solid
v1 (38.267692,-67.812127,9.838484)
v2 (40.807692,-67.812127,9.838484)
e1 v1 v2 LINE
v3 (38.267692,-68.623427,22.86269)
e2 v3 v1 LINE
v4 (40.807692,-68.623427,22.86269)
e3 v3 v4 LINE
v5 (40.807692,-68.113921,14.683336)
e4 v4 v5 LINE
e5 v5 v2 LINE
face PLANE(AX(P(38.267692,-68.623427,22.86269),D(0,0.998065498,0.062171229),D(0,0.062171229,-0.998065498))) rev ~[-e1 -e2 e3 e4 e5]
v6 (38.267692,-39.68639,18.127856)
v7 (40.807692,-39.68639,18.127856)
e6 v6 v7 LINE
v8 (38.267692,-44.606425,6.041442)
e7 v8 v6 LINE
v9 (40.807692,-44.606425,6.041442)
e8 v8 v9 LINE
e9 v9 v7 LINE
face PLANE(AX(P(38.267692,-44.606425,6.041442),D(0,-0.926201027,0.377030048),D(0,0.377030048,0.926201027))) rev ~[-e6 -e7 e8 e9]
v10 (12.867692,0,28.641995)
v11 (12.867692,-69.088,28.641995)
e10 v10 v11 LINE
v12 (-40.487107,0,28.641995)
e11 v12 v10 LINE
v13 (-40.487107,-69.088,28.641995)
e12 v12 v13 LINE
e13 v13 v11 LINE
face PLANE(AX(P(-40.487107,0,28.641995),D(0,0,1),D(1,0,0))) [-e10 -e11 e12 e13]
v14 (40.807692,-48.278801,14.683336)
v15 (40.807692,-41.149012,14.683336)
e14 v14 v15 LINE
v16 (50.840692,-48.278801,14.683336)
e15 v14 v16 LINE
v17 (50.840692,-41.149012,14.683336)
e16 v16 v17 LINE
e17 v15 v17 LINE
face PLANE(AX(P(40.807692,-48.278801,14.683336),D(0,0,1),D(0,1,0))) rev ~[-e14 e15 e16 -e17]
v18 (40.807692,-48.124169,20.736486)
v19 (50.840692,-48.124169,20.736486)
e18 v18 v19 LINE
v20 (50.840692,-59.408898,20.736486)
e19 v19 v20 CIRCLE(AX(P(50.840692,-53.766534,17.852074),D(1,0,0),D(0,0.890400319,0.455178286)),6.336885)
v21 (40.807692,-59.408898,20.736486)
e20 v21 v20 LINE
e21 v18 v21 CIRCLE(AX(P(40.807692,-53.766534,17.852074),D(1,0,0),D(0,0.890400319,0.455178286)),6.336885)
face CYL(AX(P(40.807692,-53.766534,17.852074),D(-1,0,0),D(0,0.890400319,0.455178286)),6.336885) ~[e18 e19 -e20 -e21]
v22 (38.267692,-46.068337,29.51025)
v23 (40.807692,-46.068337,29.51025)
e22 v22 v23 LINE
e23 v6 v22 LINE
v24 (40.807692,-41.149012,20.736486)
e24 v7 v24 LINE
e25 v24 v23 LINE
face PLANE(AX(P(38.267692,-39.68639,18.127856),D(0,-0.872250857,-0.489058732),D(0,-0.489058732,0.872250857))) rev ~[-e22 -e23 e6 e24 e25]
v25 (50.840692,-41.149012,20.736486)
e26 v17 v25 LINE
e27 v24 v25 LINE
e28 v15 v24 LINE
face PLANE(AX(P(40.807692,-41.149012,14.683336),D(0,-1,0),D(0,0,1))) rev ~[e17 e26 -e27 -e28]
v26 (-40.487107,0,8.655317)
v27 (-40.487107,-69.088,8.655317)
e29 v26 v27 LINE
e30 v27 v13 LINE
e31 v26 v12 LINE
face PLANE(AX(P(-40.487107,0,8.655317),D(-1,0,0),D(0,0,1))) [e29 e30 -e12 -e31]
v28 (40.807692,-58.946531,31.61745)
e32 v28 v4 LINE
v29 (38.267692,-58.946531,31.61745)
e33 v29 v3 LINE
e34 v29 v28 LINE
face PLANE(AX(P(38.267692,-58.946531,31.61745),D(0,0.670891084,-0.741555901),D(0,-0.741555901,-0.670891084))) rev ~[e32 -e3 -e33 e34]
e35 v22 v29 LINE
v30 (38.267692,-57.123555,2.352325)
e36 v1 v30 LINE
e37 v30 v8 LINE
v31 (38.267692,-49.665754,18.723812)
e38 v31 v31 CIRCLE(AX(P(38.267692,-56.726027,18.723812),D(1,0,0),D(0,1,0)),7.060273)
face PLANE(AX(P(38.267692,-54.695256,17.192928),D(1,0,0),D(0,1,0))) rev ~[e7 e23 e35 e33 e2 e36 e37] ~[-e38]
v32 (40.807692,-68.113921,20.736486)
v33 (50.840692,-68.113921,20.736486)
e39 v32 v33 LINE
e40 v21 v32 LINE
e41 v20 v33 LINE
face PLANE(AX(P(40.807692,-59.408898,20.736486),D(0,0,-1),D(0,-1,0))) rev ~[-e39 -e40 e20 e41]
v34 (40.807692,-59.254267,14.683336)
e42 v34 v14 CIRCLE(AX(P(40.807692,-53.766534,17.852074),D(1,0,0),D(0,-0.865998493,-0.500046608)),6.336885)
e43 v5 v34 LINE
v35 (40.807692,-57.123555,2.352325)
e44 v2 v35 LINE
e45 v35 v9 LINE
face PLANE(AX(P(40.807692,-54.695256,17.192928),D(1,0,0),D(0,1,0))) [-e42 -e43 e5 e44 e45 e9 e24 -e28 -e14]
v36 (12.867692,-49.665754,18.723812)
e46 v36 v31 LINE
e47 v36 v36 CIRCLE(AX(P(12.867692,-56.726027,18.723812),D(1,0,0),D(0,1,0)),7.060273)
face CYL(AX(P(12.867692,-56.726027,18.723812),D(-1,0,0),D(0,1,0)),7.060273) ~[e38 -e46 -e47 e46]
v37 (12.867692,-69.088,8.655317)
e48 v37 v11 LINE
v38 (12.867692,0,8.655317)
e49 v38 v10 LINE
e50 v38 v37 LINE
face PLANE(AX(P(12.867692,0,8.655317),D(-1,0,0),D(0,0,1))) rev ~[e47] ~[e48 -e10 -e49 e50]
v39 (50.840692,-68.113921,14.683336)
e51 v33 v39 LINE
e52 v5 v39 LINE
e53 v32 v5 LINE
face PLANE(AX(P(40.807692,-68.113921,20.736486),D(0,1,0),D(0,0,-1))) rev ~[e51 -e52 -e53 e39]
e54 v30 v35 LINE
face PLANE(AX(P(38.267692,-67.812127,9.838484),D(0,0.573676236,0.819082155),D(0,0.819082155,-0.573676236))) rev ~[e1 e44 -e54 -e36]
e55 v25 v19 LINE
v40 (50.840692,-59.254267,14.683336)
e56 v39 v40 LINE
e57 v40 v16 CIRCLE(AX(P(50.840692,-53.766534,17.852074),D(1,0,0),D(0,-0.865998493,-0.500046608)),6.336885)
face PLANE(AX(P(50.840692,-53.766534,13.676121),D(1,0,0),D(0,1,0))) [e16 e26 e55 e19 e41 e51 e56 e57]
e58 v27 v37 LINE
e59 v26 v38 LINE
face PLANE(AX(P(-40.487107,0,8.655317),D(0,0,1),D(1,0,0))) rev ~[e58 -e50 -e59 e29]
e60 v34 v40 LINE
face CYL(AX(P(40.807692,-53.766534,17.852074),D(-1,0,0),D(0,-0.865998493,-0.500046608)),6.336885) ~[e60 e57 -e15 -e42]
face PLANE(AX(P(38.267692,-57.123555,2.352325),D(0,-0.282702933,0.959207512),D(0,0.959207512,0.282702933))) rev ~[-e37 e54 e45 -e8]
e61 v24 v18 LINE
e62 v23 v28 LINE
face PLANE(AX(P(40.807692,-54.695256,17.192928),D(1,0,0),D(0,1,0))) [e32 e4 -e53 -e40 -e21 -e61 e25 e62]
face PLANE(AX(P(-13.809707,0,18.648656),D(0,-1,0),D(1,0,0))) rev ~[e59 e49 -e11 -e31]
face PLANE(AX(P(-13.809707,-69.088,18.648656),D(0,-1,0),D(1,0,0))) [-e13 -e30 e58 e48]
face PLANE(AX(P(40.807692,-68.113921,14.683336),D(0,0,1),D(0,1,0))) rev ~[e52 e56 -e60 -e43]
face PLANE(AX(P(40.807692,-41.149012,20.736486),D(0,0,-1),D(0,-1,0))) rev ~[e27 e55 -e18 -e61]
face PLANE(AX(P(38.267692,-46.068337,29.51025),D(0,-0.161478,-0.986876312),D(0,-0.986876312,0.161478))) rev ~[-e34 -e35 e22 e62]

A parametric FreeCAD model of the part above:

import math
import FreeCAD as App
import Part
import Sketcher
from FreeCAD import Vector
Q = App.Units.Quantity


def add_polygon(sketch, points):
    """Adds a closed chain of lines whose ends are joined by coincident constraints."""
    first, n = sketch.GeometryCount, len(points)
    for a, b in zip(points, points[1:] + points[:1]):
        sketch.addGeometry(Part.LineSegment(App.Vector(*a, 0), App.Vector(*b, 0)), False)
    for i in range(n):
        sketch.addConstraint(Sketcher.Constraint("Coincident", first + i, 2, first + (i + 1) % n, 1))

doc = App.newDocument("Part")
body = doc.addObject("PartDesign::Body", "Body")

# Sketch on XZ plane
sketch1 = body.newObject("Sketcher::SketchObject", "Sketch")
sketch1.AttachmentSupport = (doc.getObject("XZ_Plane"), [""])
sketch1.MapMode = "FlatFace"
add_polygon(sketch1, [(-40, 29), (-40, 9), (13, 9), (13, 29)])  # lines 0-3
sketch1.addConstraint([
    Sketcher.Constraint("Vertical", 0),
    Sketcher.Constraint("Horizontal", 1),
    Sketcher.Constraint("Vertical", 2),
    Sketcher.Constraint("Horizontal", 3),
    Sketcher.Constraint("DistanceX", 1, 1, 1, 2, Q("53.354799 mm")),
    Sketcher.Constraint("DistanceY", 0, 2, 0, 1, Q("19.986678 mm")),
    Sketcher.Constraint("DistanceX", -1, 1, 1, 2, Q("12.867692 mm")),
    Sketcher.Constraint("DistanceY", -1, 1, 0, 2, Q("8.655317 mm")),
])
pad1 = body.newObject("PartDesign::Pad", "Pad")
pad1.Profile = sketch1
pad1.Length = Q("2.72 in")

# Sketch on YZ plane
sketch2 = body.newObject("Sketcher::SketchObject", "Sketch001")
sketch2.AttachmentSupport = (doc.getObject("YZ_Plane"), [""])
sketch2.MapMode = "FlatFace"
sketch2.AttachmentOffset = App.Placement(Vector(0, 0, 12.867692), App.Rotation())
sketch2.addGeometry(Part.Circle(Vector(-57, 19, 0), Vector(0, 0, 1), 7), False)
sketch2.addConstraint([
    Sketcher.Constraint("Diameter", 0, Q("14.120546 mm")),
    Sketcher.Constraint("DistanceY", -1, 1, 0, 3, Q("18.723812 mm")),
    Sketcher.Constraint("DistanceX", 0, 3, -1, 1, Q("56.726027 mm")),
])
pad2 = body.newObject("PartDesign::Pad", "Pad001")
pad2.Profile = sketch2
pad2.Length = Q("1 in")

# Sketch on YZ plane
sketch3 = body.newObject("Sketcher::SketchObject", "Sketch002")
sketch3.AttachmentSupport = (doc.getObject("YZ_Plane"), [""])
sketch3.MapMode = "FlatFace"
sketch3.AttachmentOffset = App.Placement(Vector(0, 0, 38.267692), App.Rotation())
add_polygon(sketch3, [(-46, 30), (-59, 32), (-69, 23), (-68, 10), (-57, 2), (-45, 6), (-40, 18)])  # lines 0-6
sketch3.addConstraint([
    Sketcher.Constraint("Equal", 0, 1),
    Sketcher.Constraint("Equal", 1, 2),
    Sketcher.Constraint("Equal", 2, 3),
    Sketcher.Constraint("Equal", 3, 4),
    Sketcher.Constraint("Equal", 4, 5),
    Sketcher.Constraint("Equal", 5, 6),
    Sketcher.Constraint("DistanceX", 1, 2, 2, 2, Q("0.8113 mm")),
    Sketcher.Constraint("DistanceY", 6, 2, 0, 2, Q("2.107199 mm")),
    Sketcher.Constraint("Distance", 0, Q("13.04945 mm")),
    Sketcher.Constraint("DistanceX", 0, 2, -1, 1, Q("58.946531 mm")),
    Sketcher.Constraint("DistanceY", -1, 1, 0, 2, Q("31.61745 mm")),
    Sketcher.Constraint("DistanceY", -1, 1, 1, 2, Q("22.86269 mm")),
    Sketcher.Constraint("DistanceX", 5, 2, -1, 1, Q("39.68639 mm")),
    Sketcher.Constraint("DistanceX", 2, 2, 3, 2, Q("10.688572 mm")),
])
pad3 = body.newObject("PartDesign::Pad", "Pad002")
pad3.Profile = sketch3
pad3.Length = Q("0.1 in")

# Sketch on YZ plane
sketch4 = body.newObject("Sketcher::SketchObject", "Sketch003")
sketch4.AttachmentSupport = (doc.getObject("YZ_Plane"), [""])
sketch4.MapMode = "FlatFace"
sketch4.AttachmentOffset = App.Placement(Vector(0, 0, 40.807692), App.Rotation())
sketch4.addGeometry([
    Part.ArcOfCircle(Part.Circle(Vector(-53.766534, 17.852074, 0), Vector(0, 0, 1), 6.336885), math.radians(-149.996916), math.radians(-30.003084)),  # 0
    Part.LineSegment(Vector(-48.278801, 14.683336, 0), Vector(-41.149012, 14.683336, 0)),  # 1
    Part.LineSegment(Vector(-41.149012, 14.683336, 0), Vector(-41.149012, 20.736486, 0)),  # 2
    Part.LineSegment(Vector(-41.149012, 20.736486, 0), Vector(-48.124169, 20.736486, 0)),  # 3
    Part.ArcOfCircle(Part.Circle(Vector(-53.766534, 17.852074, 0), Vector(0, 0, 1), 6.336885), math.radians(27.076406), math.radians(152.923594)),  # 4
    Part.LineSegment(Vector(-59.408898, 20.736486, 0), Vector(-68.113921, 20.736486, 0)),  # 5
    Part.LineSegment(Vector(-68.113921, 20.736486, 0), Vector(-68.113921, 14.683336, 0)),  # 6
    Part.LineSegment(Vector(-68.113921, 14.683336, 0), Vector(-59.254267, 14.683336, 0)),  # 7
], False)
sketch4.addConstraint([
    Sketcher.Constraint("Coincident", 0, 2, 1, 1),
    Sketcher.Constraint("Coincident", 1, 2, 2, 1),
    Sketcher.Constraint("Coincident", 2, 2, 3, 1),
    Sketcher.Constraint("Coincident", 3, 2, 4, 1),
    Sketcher.Constraint("Coincident", 4, 2, 5, 1),
    Sketcher.Constraint("Coincident", 5, 2, 6, 1),
    Sketcher.Constraint("Coincident", 6, 2, 7, 1),
    Sketcher.Constraint("Coincident", 7, 2, 0, 1),
    Sketcher.Constraint("Horizontal", 1),
    Sketcher.Constraint("Vertical", 2),
    Sketcher.Constraint("Horizontal", 3),
    Sketcher.Constraint("Horizontal", 5),
    Sketcher.Constraint("Vertical", 6),
    Sketcher.Constraint("Horizontal", 7),
    Sketcher.Constraint("Coincident", 4, 3, 0, 3),
    Sketcher.Constraint("Equal", 0, 4),
    Sketcher.Constraint("Horizontal", 3, 2, 4, 2),
    Sketcher.Constraint("Horizontal", 1, 2, 6, 2),
    Sketcher.Constraint("Radius", 0, Q("6.336885 mm")),
    Sketcher.Constraint("DistanceX", 1, 1, 1, 2, Q("7.129789 mm")),
    Sketcher.Constraint("DistanceY", 2, 1, 2, 2, Q("6.05315 mm")),
    Sketcher.Constraint("DistanceX", 0, 2, -1, 1, Q("48.278801 mm")),
    Sketcher.Constraint("DistanceX", 4, 2, -1, 1, Q("59.408898 mm")),
    Sketcher.Constraint("DistanceX", 5, 2, 5, 1, Q("8.705023 mm")),
    Sketcher.Constraint("DistanceY", -1, 1, 0, 3, Q("17.852074 mm")),
])
pad4 = body.newObject("PartDesign::Pad", "Pad003")
pad4.Profile = sketch4
pad4.Length = Q("0.395 in")

doc.recompute()
